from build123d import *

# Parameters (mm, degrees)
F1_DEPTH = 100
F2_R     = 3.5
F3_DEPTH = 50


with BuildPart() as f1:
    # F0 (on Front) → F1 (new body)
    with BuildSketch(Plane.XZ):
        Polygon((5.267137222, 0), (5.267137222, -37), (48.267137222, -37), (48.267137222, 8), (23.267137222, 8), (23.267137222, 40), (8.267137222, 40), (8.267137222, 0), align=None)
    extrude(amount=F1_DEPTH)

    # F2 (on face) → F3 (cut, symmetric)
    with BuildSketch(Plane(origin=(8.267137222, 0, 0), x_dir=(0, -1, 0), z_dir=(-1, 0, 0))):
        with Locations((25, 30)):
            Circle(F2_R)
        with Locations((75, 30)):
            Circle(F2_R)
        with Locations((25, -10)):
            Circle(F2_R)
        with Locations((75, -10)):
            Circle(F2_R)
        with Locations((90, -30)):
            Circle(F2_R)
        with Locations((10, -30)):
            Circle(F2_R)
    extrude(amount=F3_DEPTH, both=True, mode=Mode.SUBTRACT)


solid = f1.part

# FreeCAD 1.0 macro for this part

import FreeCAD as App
import Part
import Sketcher

V = App.Vector

doc = App.newDocument("Part")
body = doc.addObject("PartDesign::Body", "Body")

# Sketch on XZ plane
sketch1 = doc.addObject("Sketcher::SketchObject", "Sketch")
body.addObject(sketch1)
sketch1.AttachmentSupport = (doc.XZ_Plane, [""])
sketch1.MapMode = "FlatFace"
sketch1.addGeometry(Part.LineSegment(V(5.3, 0, 0), V(5.3, -37, 0)), False)
sketch1.addGeometry(Part.LineSegment(V(5.3, -37, 0), V(48.3, -37, 0)), False)
sketch1.addGeometry(Part.LineSegment(V(48.3, -37, 0), V(48.3, 8, 0)), False)
sketch1.addGeometry(Part.LineSegment(V(48.3, 8, 0), V(23.3, 8, 0)), False)
sketch1.addGeometry(Part.LineSegment(V(23.3, 8, 0), V(23.3, 40, 0)), False)
sketch1.addGeometry(Part.LineSegment(V(23.3, 40, 0), V(8.3, 40, 0)), False)
sketch1.addGeometry(Part.LineSegment(V(8.3, 40, 0), V(8.3, 0, 0)), False)
sketch1.addGeometry(Part.LineSegment(V(8.3, 0, 0), V(5.3, 0, 0)), False)
sketch1.addConstraint(Sketcher.Constraint("Coincident", 0, 2, 1, 1))
sketch1.addConstraint(Sketcher.Constraint("Coincident", 1, 2, 2, 1))
sketch1.addConstraint(Sketcher.Constraint("Coincident", 2, 2, 3, 1))
sketch1.addConstraint(Sketcher.Constraint("Coincident", 3, 2, 4, 1))
sketch1.addConstraint(Sketcher.Constraint("Coincident", 4, 2, 5, 1))
sketch1.addConstraint(Sketcher.Constraint("Coincident", 5, 2, 6, 1))
sketch1.addConstraint(Sketcher.Constraint("Coincident", 6, 2, 7, 1))
sketch1.addConstraint(Sketcher.Constraint("Coincident", 7, 2, 0, 1))
sketch1.addConstraint(Sketcher.Constraint("Vertical", 0))
sketch1.addConstraint(Sketcher.Constraint("Horizontal", 1))
sketch1.addConstraint(Sketcher.Constraint("Vertical", 2))
sketch1.addConstraint(Sketcher.Constraint("Horizontal", 3))
sketch1.addConstraint(Sketcher.Constraint("Vertical", 4))
sketch1.addConstraint(Sketcher.Constraint("Horizontal", 5))
sketch1.addConstraint(Sketcher.Constraint("Vertical", 6))
sketch1.addConstraint(Sketcher.Constraint("Horizontal", 7))
sketch1.addConstraint(Sketcher.Constraint("PointOnObject", 6, 2, -1))
sketch1.addConstraint(Sketcher.Constraint("DistanceX", 1, 1, 1, 2, 43.0))
sketch1.addConstraint(Sketcher.Constraint("DistanceX", 3, 2, 3, 1, 25.0))
sketch1.addConstraint(Sketcher.Constraint("DistanceX", 5, 2, 5, 1, 15.0))
sketch1.addConstraint(Sketcher.Constraint("DistanceY", 0, 2, 0, 1, 37.0))
sketch1.addConstraint(Sketcher.Constraint("DistanceY", 2, 1, 2, 2, 45.0))
sketch1.addConstraint(Sketcher.Constraint("DistanceY", 4, 1, 4, 2, 32.0))
sketch1.addConstraint(Sketcher.Constraint("DistanceX", -1, 1, 0, 2, 5.267137))
pad1 = doc.addObject("PartDesign::Pad", "Pad")
body.addObject(pad1)
pad1.Profile = sketch1
pad1.Length = 100

# Sketch on YZ plane
sketch2 = doc.addObject("Sketcher::SketchObject", "Sketch001")
body.addObject(sketch2)
sketch2.AttachmentSupport = (doc.YZ_Plane, [""])
sketch2.MapMode = "FlatFace"
sketch2.AttachmentOffset = App.Placement(V(0, 0, 8.267137), App.Rotation())
sketch2.addGeometry(Part.Circle(V(-25, 30, 0), V(0, 0, 1), 3.5), False)
sketch2.addGeometry(Part.Circle(V(-75, 30, 0), V(0, 0, 1), 3.5), False)
sketch2.addGeometry(Part.Circle(V(-25, -10, 0), V(0, 0, 1), 3.5), False)
sketch2.addGeometry(Part.Circle(V(-75, -10, 0), V(0, 0, 1), 3.5), False)
sketch2.addGeometry(Part.Circle(V(-90, -30, 0), V(0, 0, 1), 3.5), False)
sketch2.addGeometry(Part.Circle(V(-10, -30, 0), V(0, 0, 1), 3.5), False)
sketch2.addConstraint(Sketcher.Constraint("Equal", 0, 1))
sketch2.addConstraint(Sketcher.Constraint("Equal", 1, 2))
sketch2.addConstraint(Sketcher.Constraint("Equal", 2, 3))
sketch2.addConstraint(Sketcher.Constraint("Equal", 3, 4))
sketch2.addConstraint(Sketcher.Constraint("Equal", 4, 5))
sketch2.addConstraint(Sketcher.Constraint("Horizontal", 0, 3, 1, 3))
sketch2.addConstraint(Sketcher.Constraint("Horizontal", 2, 3, 3, 3))
sketch2.addConstraint(Sketcher.Constraint("Horizontal", 4, 3, 5, 3))
sketch2.addConstraint(Sketcher.Constraint("Vertical", 0, 3, 2, 3))
sketch2.addConstraint(Sketcher.Constraint("Vertical", 1, 3, 3, 3))
sketch2.addConstraint(Sketcher.Constraint("Diameter", 0, 7.0))
sketch2.addConstraint(Sketcher.Constraint("DistanceX", 0, 3, -1, 1, 25.0))
sketch2.addConstraint(Sketcher.Constraint("DistanceY", -1, 1, 0, 3, 30.0))
sketch2.addConstraint(Sketcher.Constraint("DistanceX", 1, 3, -1, 1, 75.0))
sketch2.addConstraint(Sketcher.Constraint("DistanceY", 2, 3, -1, 1, 10.0))
sketch2.addConstraint(Sketcher.Constraint("DistanceX", 4, 3, -1, 1, 90.0))
sketch2.addConstraint(Sketcher.Constraint("DistanceY", 4, 3, -1, 1, 30.0))
sketch2.addConstraint(Sketcher.Constraint("DistanceX", 5, 3, -1, 1, 10.0))
pocket1 = doc.addObject("PartDesign::Pocket", "Pocket")
body.addObject(pocket1)
pocket1.Profile = sketch2
pocket1.Length = 100
pocket1.Midplane = True

doc.recompute()
